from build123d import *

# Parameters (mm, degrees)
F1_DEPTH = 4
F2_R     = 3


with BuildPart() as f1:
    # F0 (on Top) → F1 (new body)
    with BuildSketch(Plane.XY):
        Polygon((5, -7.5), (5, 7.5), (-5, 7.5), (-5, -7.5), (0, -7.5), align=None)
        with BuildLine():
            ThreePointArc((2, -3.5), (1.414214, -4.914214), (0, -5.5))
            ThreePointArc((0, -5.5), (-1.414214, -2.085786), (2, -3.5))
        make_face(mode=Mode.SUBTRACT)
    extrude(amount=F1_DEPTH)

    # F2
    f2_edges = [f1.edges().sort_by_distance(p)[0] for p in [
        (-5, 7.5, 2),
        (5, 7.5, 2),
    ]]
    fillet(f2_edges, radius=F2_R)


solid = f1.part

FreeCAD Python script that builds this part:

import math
import FreeCAD as App
import Part
import Sketcher
from FreeCAD import Vector
Q = App.Units.Quantity


def edges_at(feature, points):
    """Names of the edges that pass closest to the given points."""
    edges = feature.Shape.Edges
    near = lambda p: min(range(len(edges)), key=lambda i: edges[i].distToShape(Part.Vertex(*p))[0])
    return sorted({f"Edge{near(p) + 1}" for p in points})

doc = App.newDocument("Part")
params = doc.addObject("Spreadsheet::Sheet", "Params")
for row, (alias, value) in enumerate([
    ("sketch1_radius", "2 mm"),
    ("sketch1_width", "10 mm"),
    ("sketch1_height", "15 mm"),
    ("pad1_length", "4 mm"),
    ("fillet_radius", "3 mm"),
], start=1):
    params.set(f"A{row}", alias)
    params.set(f"B{row}", "=" + value)
    params.setAlias(f"B{row}", alias)

body = doc.addObject("PartDesign::Body", "Body")

# Sketch on XY plane
sketch1 = body.newObject("Sketcher::SketchObject", "Sketch")
sketch1.AttachmentSupport = (doc.getObject("XY_Plane"), [""])
sketch1.MapMode = "FlatFace"
sketch1.addGeometry([
    Part.LineSegment(Vector(5, -7.5, 0), Vector(5, 7.5, 0)),  # 0
    Part.LineSegment(Vector(5, 7.5, 0), Vector(-5, 7.5, 0)),  # 1
    Part.LineSegment(Vector(-5, 7.5, 0), Vector(-5, -7.5, 0)),  # 2
    Part.LineSegment(Vector(-5, -7.5, 0), Vector(5, -7.5, 0)),  # 3
    Part.ArcOfCircle(Part.Circle(Vector(0, -3.5, 0), Vector(0, 0, 1), 2), math.radians(0), math.radians(270)),  # 4
    Part.ArcOfCircle(Part.Circle(Vector(0, -3.5, 0), Vector(0, 0, 1), 2), math.radians(-90), math.radians(0)),  # 5
], False)
sketch1.addConstraint([
    Sketcher.Constraint("Coincident", 0, 2, 1, 1),
    Sketcher.Constraint("Coincident", 1, 2, 2, 1),
    Sketcher.Constraint("Coincident", 2, 2, 3, 1),
    Sketcher.Constraint("Coincident", 3, 2, 0, 1),
    Sketcher.Constraint("Tangent", 4, 1, 5, 2),
    Sketcher.Constraint("Coincident", 5, 1, 4, 2),
    Sketcher.Constraint("Vertical", 0),
    Sketcher.Constraint("Horizontal", 1),
    Sketcher.Constraint("Vertical", 2),
    Sketcher.Constraint("Horizontal", 3),
    Sketcher.Constraint("Symmetric", 0, 2, 2, 2, -1, 1),
    Sketcher.Constraint("PointOnObject", 4, 3, -2),
    Sketcher.Constraint("PointOnObject", 5, 1, -2),
    Sketcher.Constraint("Horizontal", 5, 3, 4, 1),
    Sketcher.Constraint("Radius", 4, Q("2 mm")),
    Sketcher.Constraint("DistanceX", 1, 2, 1, 1, Q("10 mm")),
    Sketcher.Constraint("DistanceY", 0, 1, 0, 2, Q("15 mm")),
    Sketcher.Constraint("DistanceY", 4, 3, 0, 2, Q("11 mm")),
])
sketch1.setExpression("Constraints[14]", "Params.sketch1_radius")
sketch1.setExpression("Constraints[15]", "Params.sketch1_width")
sketch1.setExpression("Constraints[16]", "Params.sketch1_height")
pad1 = body.newObject("PartDesign::Pad", "Pad")
pad1.Profile = sketch1
pad1.setExpression("Length", "Params.pad1_length")
doc.recompute()

fillet = body.newObject("PartDesign::Fillet", "Fillet")
fillet.Base = (pad1, edges_at(pad1, [(-5, 7.5, 2), (5, 7.5, 2)]))
fillet.setExpression("Radius", "Params.fillet_radius")

doc.recompute()
